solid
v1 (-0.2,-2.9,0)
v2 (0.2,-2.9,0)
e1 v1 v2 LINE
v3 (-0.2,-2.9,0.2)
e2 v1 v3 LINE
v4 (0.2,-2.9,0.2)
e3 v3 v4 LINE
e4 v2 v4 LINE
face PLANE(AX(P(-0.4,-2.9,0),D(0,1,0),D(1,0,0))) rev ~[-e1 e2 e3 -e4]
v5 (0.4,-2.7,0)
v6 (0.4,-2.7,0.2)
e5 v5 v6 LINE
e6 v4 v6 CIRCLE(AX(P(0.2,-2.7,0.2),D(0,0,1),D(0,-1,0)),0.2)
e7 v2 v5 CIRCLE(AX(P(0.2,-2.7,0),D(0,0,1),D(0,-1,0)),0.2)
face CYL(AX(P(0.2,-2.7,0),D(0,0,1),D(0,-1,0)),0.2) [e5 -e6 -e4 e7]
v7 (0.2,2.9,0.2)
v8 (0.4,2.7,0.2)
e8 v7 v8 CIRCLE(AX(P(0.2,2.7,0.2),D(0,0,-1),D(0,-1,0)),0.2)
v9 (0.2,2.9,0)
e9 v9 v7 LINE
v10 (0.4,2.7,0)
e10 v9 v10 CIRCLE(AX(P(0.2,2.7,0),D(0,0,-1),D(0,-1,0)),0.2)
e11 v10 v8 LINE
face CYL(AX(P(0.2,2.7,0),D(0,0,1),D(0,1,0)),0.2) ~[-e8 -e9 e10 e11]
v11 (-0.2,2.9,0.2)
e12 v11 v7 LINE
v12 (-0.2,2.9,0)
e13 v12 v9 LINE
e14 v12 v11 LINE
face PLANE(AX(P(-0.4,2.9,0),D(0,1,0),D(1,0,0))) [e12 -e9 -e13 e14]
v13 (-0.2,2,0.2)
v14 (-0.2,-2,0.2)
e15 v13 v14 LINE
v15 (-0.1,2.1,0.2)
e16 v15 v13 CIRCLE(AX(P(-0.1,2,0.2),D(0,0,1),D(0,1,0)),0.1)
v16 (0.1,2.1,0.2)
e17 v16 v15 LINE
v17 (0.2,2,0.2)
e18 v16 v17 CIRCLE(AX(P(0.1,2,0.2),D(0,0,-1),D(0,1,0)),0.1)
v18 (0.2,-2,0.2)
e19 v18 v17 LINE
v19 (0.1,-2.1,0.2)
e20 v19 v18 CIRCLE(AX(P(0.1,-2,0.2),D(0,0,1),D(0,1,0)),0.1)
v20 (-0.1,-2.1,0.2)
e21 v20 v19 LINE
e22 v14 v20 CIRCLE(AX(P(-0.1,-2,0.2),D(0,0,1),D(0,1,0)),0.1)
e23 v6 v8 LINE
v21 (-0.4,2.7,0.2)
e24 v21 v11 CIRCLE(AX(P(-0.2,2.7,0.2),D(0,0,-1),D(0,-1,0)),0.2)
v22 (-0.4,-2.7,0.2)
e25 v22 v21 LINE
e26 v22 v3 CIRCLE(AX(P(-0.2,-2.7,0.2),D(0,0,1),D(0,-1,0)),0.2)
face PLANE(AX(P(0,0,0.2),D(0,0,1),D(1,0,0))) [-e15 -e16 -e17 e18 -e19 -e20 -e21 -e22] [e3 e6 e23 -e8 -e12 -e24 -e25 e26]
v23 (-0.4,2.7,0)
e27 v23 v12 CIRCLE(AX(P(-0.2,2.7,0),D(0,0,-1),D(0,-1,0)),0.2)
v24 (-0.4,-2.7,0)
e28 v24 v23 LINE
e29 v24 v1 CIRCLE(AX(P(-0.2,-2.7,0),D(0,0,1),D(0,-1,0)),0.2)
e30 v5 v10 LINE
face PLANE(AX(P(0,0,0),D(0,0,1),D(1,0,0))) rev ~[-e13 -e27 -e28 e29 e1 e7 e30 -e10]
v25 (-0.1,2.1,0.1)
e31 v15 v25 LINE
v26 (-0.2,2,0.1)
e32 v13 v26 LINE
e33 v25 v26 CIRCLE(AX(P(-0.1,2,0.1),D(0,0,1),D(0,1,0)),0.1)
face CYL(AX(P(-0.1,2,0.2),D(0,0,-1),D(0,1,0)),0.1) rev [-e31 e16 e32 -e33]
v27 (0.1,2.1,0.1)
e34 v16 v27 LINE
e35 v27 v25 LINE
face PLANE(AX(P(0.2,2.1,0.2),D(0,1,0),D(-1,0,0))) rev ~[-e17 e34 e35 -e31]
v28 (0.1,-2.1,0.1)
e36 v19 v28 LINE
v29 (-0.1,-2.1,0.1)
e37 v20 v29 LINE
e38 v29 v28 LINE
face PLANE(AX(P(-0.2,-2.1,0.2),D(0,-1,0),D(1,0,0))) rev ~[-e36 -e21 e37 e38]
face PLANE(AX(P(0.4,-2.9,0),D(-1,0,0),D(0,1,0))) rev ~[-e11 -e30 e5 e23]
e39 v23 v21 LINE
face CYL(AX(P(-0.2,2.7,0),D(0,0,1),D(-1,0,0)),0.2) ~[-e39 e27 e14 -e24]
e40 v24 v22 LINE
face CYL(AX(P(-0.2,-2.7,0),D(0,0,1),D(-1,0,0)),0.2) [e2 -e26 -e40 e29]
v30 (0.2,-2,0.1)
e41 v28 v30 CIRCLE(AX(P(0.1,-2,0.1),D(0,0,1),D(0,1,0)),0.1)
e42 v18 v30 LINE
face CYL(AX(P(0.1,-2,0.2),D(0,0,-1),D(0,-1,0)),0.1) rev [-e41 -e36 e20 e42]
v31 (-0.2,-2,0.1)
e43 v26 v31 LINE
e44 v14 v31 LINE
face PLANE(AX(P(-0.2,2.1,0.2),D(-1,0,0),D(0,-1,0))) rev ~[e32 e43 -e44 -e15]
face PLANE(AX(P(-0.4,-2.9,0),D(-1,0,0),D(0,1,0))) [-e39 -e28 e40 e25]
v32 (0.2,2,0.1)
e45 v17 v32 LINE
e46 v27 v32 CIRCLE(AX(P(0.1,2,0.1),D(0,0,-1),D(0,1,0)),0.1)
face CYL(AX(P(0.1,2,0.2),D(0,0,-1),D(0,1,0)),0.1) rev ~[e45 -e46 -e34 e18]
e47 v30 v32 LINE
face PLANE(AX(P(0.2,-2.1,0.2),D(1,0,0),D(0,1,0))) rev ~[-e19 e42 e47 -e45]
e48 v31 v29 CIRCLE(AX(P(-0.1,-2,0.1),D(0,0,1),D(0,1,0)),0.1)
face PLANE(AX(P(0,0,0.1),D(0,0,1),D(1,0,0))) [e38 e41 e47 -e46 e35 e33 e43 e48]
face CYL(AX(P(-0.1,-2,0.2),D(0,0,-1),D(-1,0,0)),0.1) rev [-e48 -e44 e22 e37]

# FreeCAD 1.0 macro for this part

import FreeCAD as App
import Part
import Sketcher
Q = App.Units.Quantity


def edges_at(feature, points):
    """Names of the edges that pass closest to the given points."""
    edges = feature.Shape.Edges
    near = lambda p: min(range(len(edges)), key=lambda i: edges[i].distToShape(Part.Vertex(*p))[0])
    return sorted({f"Edge{near(p) + 1}" for p in points})

doc = App.newDocument("Part")
body = doc.addObject("PartDesign::Body", "Body")

# Sketch on XY plane
sketch1 = body.newObject("Sketcher::SketchObject", "Sketch")
sketch1.AttachmentSupport = (doc.getObject("XY_Plane"), [""])
sketch1.MapMode = "FlatFace"
sketch1.addGeometry([
    Part.LineSegment(App.Vector(-0.4, 2.9, 0), App.Vector(-0.4, -2.9, 0)),
    Part.LineSegment(App.Vector(-0.4, -2.9, 0), App.Vector(0.4, -2.9, 0)),
    Part.LineSegment(App.Vector(0.4, -2.9, 0), App.Vector(0.4, 2.9, 0)),
    Part.LineSegment(App.Vector(0.4, 2.9, 0), App.Vector(-0.4, 2.9, 0)),
], False)
sketch1.addConstraint([
    Sketcher.Constraint("Coincident", 0, 2, 1, 1),
    Sketcher.Constraint("Coincident", 1, 2, 2, 1),
    Sketcher.Constraint("Coincident", 2, 2, 3, 1),
    Sketcher.Constraint("Coincident", 3, 2, 0, 1),
    Sketcher.Constraint("Vertical", 0),
    Sketcher.Constraint("Horizontal", 1),
    Sketcher.Constraint("Vertical", 2),
    Sketcher.Constraint("Horizontal", 3),
    Sketcher.Constraint("Symmetric", 0, 2, 2, 2, -1, 1),
    Sketcher.Constraint("DistanceX", 1, 1, 1, 2, Q("0.8 mm")),
    Sketcher.Constraint("DistanceY", 0, 2, 0, 1, Q("5.8 mm")),
])
pad1 = body.newObject("PartDesign::Pad", "Pad")
pad1.Profile = sketch1
pad1.Length = 0.2

# Sketch on XY plane
sketch2 = body.newObject("Sketcher::SketchObject", "Sketch001")
sketch2.AttachmentSupport = (doc.getObject("XY_Plane"), [""])
sketch2.MapMode = "FlatFace"
sketch2.AttachmentOffset = App.Placement(App.Vector(0, 0, 0.2), App.Rotation())
sketch2.addGeometry([
    Part.LineSegment(App.Vector(0.2, 2.1, 0), App.Vector(-0.2, 2.1, 0)),
    Part.LineSegment(App.Vector(-0.2, 2.1, 0), App.Vector(-0.2, -2.1, 0)),
    Part.LineSegment(App.Vector(-0.2, -2.1, 0), App.Vector(0.2, -2.1, 0)),
    Part.LineSegment(App.Vector(0.2, -2.1, 0), App.Vector(0.2, 2.1, 0)),
], False)
sketch2.addConstraint([
    Sketcher.Constraint("Coincident", 0, 2, 1, 1),
    Sketcher.Constraint("Coincident", 1, 2, 2, 1),
    Sketcher.Constraint("Coincident", 2, 2, 3, 1),
    Sketcher.Constraint("Coincident", 3, 2, 0, 1),
    Sketcher.Constraint("Horizontal", 0),
    Sketcher.Constraint("Vertical", 1),
    Sketcher.Constraint("Horizontal", 2),
    Sketcher.Constraint("Vertical", 3),
    Sketcher.Constraint("Symmetric", 0, 2, 2, 2, -1, 1),
    Sketcher.Constraint("DistanceX", 0, 2, 0, 1, Q("0.4 mm")),
    Sketcher.Constraint("DistanceY", 1, 2, 1, 1, Q("4.2 mm")),
])
pocket1 = body.newObject("PartDesign::Pocket", "Pocket")
pocket1.Profile = sketch2
pocket1.Length = 0.1
doc.recompute()

fillet = body.newObject("PartDesign::Fillet", "Fillet")
fillet.Base = (pocket1, edges_at(pocket1, [
    (0.4, 2.9, 0.1),
    (-0.4, 2.9, 0.1),
    (0.4, -2.9, 0.1),
    (-0.4, -2.9, 0.1),
]))
fillet.Radius = 0.2
doc.recompute()

fillet2 = body.newObject("PartDesign::Fillet", "Fillet001")
fillet2.Base = (fillet, edges_at(fillet, [
    (0.2, 2.1, 0.15),
    (-0.2, 2.1, 0.15),
    (-0.2, -2.1, 0.15),
    (0.2, -2.1, 0.15),
]))
fillet2.Radius = 0.1

doc.recompute()
